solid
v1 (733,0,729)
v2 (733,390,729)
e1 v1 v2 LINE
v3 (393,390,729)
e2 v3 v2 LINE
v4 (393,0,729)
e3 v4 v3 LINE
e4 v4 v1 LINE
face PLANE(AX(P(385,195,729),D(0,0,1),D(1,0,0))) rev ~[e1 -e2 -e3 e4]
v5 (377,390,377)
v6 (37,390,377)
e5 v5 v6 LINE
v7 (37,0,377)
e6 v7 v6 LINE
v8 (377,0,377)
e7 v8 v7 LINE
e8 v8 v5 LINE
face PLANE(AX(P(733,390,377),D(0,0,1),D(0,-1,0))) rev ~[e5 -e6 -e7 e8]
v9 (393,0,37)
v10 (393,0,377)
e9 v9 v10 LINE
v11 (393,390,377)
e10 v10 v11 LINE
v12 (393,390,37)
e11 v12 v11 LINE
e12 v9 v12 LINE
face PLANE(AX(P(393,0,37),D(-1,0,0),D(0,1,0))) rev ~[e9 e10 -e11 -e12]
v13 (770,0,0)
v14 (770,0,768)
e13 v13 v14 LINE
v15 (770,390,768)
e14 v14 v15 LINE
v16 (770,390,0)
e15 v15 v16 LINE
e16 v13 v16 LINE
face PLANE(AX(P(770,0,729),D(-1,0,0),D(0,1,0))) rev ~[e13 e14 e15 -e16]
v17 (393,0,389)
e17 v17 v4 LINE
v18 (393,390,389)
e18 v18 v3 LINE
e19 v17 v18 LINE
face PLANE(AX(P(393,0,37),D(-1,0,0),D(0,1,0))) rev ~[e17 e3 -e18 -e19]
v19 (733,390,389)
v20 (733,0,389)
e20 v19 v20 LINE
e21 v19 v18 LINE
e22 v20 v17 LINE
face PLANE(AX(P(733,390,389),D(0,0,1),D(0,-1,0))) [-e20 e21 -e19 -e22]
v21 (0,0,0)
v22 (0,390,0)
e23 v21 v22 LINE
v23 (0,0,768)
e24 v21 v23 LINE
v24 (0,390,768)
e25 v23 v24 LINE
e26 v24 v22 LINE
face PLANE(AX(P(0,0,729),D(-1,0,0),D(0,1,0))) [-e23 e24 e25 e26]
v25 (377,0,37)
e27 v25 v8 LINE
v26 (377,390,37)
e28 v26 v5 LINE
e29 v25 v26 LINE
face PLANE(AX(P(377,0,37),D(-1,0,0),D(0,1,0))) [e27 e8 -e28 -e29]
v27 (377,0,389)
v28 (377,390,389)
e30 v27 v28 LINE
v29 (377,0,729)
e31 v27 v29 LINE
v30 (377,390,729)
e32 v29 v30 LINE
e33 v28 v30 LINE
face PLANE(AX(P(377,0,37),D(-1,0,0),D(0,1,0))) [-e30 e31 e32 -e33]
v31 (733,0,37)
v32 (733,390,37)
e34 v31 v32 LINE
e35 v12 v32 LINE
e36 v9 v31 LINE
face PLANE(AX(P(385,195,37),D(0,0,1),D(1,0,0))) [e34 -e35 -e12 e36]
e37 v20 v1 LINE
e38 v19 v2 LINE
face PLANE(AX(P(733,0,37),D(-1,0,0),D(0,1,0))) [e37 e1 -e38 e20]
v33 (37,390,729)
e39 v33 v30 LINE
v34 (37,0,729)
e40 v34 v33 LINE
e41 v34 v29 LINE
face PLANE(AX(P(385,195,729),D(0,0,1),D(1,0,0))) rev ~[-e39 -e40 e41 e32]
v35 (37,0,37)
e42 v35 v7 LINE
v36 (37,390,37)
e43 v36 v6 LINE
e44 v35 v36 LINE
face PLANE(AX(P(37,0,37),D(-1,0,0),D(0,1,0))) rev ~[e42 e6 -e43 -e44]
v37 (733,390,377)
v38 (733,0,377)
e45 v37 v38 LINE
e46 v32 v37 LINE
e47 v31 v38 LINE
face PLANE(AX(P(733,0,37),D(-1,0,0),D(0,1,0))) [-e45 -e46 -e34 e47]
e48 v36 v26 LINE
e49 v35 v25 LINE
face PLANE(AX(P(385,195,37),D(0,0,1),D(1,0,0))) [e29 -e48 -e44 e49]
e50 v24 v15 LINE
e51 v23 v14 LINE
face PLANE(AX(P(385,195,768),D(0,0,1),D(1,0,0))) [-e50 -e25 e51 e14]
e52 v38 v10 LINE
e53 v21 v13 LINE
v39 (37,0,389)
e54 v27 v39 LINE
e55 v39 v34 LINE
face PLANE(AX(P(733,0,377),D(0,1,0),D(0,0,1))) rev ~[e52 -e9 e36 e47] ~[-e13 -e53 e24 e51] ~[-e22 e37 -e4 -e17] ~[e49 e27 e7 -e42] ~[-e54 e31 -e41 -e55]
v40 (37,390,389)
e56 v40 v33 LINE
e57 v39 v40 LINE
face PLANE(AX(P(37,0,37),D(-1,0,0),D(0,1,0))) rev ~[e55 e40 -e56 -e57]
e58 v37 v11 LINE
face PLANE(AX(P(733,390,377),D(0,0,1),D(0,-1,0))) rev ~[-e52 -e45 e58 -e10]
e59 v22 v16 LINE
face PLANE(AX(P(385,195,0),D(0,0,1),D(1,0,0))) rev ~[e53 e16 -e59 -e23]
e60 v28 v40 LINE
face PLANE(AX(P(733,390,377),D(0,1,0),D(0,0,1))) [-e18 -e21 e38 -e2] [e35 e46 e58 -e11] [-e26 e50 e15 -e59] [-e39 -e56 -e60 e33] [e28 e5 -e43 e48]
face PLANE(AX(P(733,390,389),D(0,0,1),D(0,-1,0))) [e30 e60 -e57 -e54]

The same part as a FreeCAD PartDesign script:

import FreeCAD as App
import Part
import Sketcher

V = App.Vector
Q = App.Units.Quantity

doc = App.newDocument("Part")
body = doc.addObject("PartDesign::Body", "Body")

# Sketch on XY plane
sketch1 = body.newObject("Sketcher::SketchObject", "Sketch")
sketch1.AttachmentSupport = (doc.getObject("XY_Plane"), [""])
sketch1.MapMode = "FlatFace"
sketch1.addGeometry([
    Part.LineSegment(V(0, 390, 0), V(0, 0, 0)),
    Part.LineSegment(V(0, 0, 0), V(770, 0, 0)),
    Part.LineSegment(V(770, 0, 0), V(770, 390, 0)),
    Part.LineSegment(V(770, 390, 0), V(0, 390, 0)),
], False)
sketch1.addConstraint([
    Sketcher.Constraint("Coincident", 0, 2, 1, 1),
    Sketcher.Constraint("Coincident", 1, 2, 2, 1),
    Sketcher.Constraint("Coincident", 2, 2, 3, 1),
    Sketcher.Constraint("Coincident", 3, 2, 0, 1),
    Sketcher.Constraint("Vertical", 0),
    Sketcher.Constraint("Horizontal", 1),
    Sketcher.Constraint("Vertical", 2),
    Sketcher.Constraint("Horizontal", 3),
    Sketcher.Constraint("Coincident", 0, 2, -1, 1),
    Sketcher.Constraint("DistanceX", 1, 1, 1, 2, Q("770 mm")),
    Sketcher.Constraint("DistanceY", 0, 2, 0, 1, Q("390 mm")),
])
pad1 = body.newObject("PartDesign::Pad", "Pad")
pad1.Profile = sketch1
pad1.Length = 37

# Sketch on XY plane
sketch2 = body.newObject("Sketcher::SketchObject", "Sketch001")
sketch2.AttachmentSupport = (doc.getObject("XY_Plane"), [""])
sketch2.MapMode = "FlatFace"
sketch2.AttachmentOffset = App.Placement(V(0, 0, 37), App.Rotation())
sketch2.addGeometry([
    Part.LineSegment(V(0, 390, 0), V(0, 0, 0)),  # 0
    Part.LineSegment(V(0, 0, 0), V(37, 0, 0)),  # 1
    Part.LineSegment(V(37, 0, 0), V(37, 390, 0)),  # 2
    Part.LineSegment(V(37, 390, 0), V(0, 390, 0)),  # 3
    Part.LineSegment(V(733, 390, 0), V(733, 0, 0)),  # 4
    Part.LineSegment(V(733, 0, 0), V(770, 0, 0)),  # 5
    Part.LineSegment(V(770, 0, 0), V(770, 390, 0)),  # 6
    Part.LineSegment(V(770, 390, 0), V(733, 390, 0)),  # 7
    Part.LineSegment(V(377, 390, 0), V(377, 0, 0)),  # 8
    Part.LineSegment(V(377, 0, 0), V(393, 0, 0)),  # 9
    Part.LineSegment(V(393, 0, 0), V(393, 390, 0)),  # 10
    Part.LineSegment(V(393, 390, 0), V(377, 390, 0)),  # 11
], False)
sketch2.addConstraint([
    Sketcher.Constraint("Coincident", 0, 2, 1, 1),
    Sketcher.Constraint("Coincident", 1, 2, 2, 1),
    Sketcher.Constraint("Coincident", 2, 2, 3, 1),
    Sketcher.Constraint("Coincident", 3, 2, 0, 1),
    Sketcher.Constraint("Coincident", 4, 2, 5, 1),
    Sketcher.Constraint("Coincident", 5, 2, 6, 1),
    Sketcher.Constraint("Coincident", 6, 2, 7, 1),
    Sketcher.Constraint("Coincident", 7, 2, 4, 1),
    Sketcher.Constraint("Coincident", 8, 2, 9, 1),
    Sketcher.Constraint("Coincident", 9, 2, 10, 1),
    Sketcher.Constraint("Coincident", 10, 2, 11, 1),
    Sketcher.Constraint("Coincident", 11, 2, 8, 1),
    Sketcher.Constraint("Vertical", 0),
    Sketcher.Constraint("Horizontal", 1),
    Sketcher.Constraint("Vertical", 2),
    Sketcher.Constraint("Horizontal", 3),
    Sketcher.Constraint("Vertical", 4),
    Sketcher.Constraint("Horizontal", 5),
    Sketcher.Constraint("Vertical", 6),
    Sketcher.Constraint("Horizontal", 7),
    Sketcher.Constraint("Vertical", 8),
    Sketcher.Constraint("Horizontal", 9),
    Sketcher.Constraint("Vertical", 10),
    Sketcher.Constraint("Horizontal", 11),
    Sketcher.Constraint("Coincident", 0, 2, -1, 1),
    Sketcher.Constraint("PointOnObject", 4, 2, -1),
    Sketcher.Constraint("PointOnObject", 8, 2, -1),
    Sketcher.Constraint("Horizontal", 3, 2, 6, 2),
    Sketcher.Constraint("Horizontal", 7, 2, 10, 2),
    Sketcher.Constraint("Equal", 3, 5),
    Sketcher.Constraint("DistanceX", 1, 1, 1, 2, Q("37 mm")),
    Sketcher.Constraint("DistanceX", 9, 1, 9, 2, Q("16 mm")),
    Sketcher.Constraint("DistanceY", 0, 2, 0, 1, Q("390 mm")),
    Sketcher.Constraint("DistanceX", -1, 1, 4, 2, Q("733 mm")),
    Sketcher.Constraint("DistanceX", -1, 1, 8, 2, Q("377 mm")),
])
pad2 = body.newObject("PartDesign::Pad", "Pad001")
pad2.Profile = sketch2
pad2.Length = 692

# Sketch on XY plane
sketch3 = body.newObject("Sketcher::SketchObject", "Sketch002")
sketch3.AttachmentSupport = (doc.getObject("XY_Plane"), [""])
sketch3.MapMode = "FlatFace"
sketch3.AttachmentOffset = App.Placement(V(0, 0, 729), App.Rotation())
sketch3.addGeometry([
    Part.LineSegment(V(0, 390, 0), V(0, 0, 0)),
    Part.LineSegment(V(0, 0, 0), V(770, 0, 0)),
    Part.LineSegment(V(770, 0, 0), V(770, 390, 0)),
    Part.LineSegment(V(770, 390, 0), V(0, 390, 0)),
], False)
sketch3.addConstraint([
    Sketcher.Constraint("Coincident", 0, 2, 1, 1),
    Sketcher.Constraint("Coincident", 1, 2, 2, 1),
    Sketcher.Constraint("Coincident", 2, 2, 3, 1),
    Sketcher.Constraint("Coincident", 3, 2, 0, 1),
    Sketcher.Constraint("Vertical", 0),
    Sketcher.Constraint("Horizontal", 1),
    Sketcher.Constraint("Vertical", 2),
    Sketcher.Constraint("Horizontal", 3),
    Sketcher.Constraint("Coincident", 0, 2, -1, 1),
    Sketcher.Constraint("DistanceX", 1, 1, 1, 2, Q("770 mm")),
    Sketcher.Constraint("DistanceY", 0, 2, 0, 1, Q("390 mm")),
])
pad3 = body.newObject("PartDesign::Pad", "Pad002")
pad3.Profile = sketch3
pad3.Length = 39

# Sketch on YZ plane
sketch4 = body.newObject("Sketcher::SketchObject", "Sketch003")
sketch4.AttachmentSupport = (doc.getObject("YZ_Plane"), [""])
sketch4.MapMode = "FlatFace"
sketch4.AttachmentOffset = App.Placement(V(0, 0, 733), App.Rotation())
sketch4.addGeometry([
    Part.LineSegment(V(390, 389, 0), V(390, 377, 0)),
    Part.LineSegment(V(390, 377, 0), V(0, 377, 0)),
    Part.LineSegment(V(0, 377, 0), V(0, 389, 0)),
    Part.LineSegment(V(0, 389, 0), V(390, 389, 0)),
], False)
sketch4.addConstraint([
    Sketcher.Constraint("Coincident", 0, 2, 1, 1),
    Sketcher.Constraint("Coincident", 1, 2, 2, 1),
    Sketcher.Constraint("Coincident", 2, 2, 3, 1),
    Sketcher.Constraint("Coincident", 3, 2, 0, 1),
    Sketcher.Constraint("Vertical", 0),
    Sketcher.Constraint("Horizontal", 1),
    Sketcher.Constraint("Vertical", 2),
    Sketcher.Constraint("Horizontal", 3),
    Sketcher.Constraint("PointOnObject", 1, 2, -2),
    Sketcher.Constraint("DistanceX", 1, 2, 1, 1, Q("390 mm")),
    Sketcher.Constraint("DistanceY", 0, 2, 0, 1, Q("12 mm")),
    Sketcher.Constraint("DistanceY", -1, 1, 0, 2, Q("377 mm")),
])
pad4 = body.newObject("PartDesign::Pad", "Pad003")
pad4.Profile = sketch4
pad4.Length = 704
pad4.Reversed = True

doc.recompute()
